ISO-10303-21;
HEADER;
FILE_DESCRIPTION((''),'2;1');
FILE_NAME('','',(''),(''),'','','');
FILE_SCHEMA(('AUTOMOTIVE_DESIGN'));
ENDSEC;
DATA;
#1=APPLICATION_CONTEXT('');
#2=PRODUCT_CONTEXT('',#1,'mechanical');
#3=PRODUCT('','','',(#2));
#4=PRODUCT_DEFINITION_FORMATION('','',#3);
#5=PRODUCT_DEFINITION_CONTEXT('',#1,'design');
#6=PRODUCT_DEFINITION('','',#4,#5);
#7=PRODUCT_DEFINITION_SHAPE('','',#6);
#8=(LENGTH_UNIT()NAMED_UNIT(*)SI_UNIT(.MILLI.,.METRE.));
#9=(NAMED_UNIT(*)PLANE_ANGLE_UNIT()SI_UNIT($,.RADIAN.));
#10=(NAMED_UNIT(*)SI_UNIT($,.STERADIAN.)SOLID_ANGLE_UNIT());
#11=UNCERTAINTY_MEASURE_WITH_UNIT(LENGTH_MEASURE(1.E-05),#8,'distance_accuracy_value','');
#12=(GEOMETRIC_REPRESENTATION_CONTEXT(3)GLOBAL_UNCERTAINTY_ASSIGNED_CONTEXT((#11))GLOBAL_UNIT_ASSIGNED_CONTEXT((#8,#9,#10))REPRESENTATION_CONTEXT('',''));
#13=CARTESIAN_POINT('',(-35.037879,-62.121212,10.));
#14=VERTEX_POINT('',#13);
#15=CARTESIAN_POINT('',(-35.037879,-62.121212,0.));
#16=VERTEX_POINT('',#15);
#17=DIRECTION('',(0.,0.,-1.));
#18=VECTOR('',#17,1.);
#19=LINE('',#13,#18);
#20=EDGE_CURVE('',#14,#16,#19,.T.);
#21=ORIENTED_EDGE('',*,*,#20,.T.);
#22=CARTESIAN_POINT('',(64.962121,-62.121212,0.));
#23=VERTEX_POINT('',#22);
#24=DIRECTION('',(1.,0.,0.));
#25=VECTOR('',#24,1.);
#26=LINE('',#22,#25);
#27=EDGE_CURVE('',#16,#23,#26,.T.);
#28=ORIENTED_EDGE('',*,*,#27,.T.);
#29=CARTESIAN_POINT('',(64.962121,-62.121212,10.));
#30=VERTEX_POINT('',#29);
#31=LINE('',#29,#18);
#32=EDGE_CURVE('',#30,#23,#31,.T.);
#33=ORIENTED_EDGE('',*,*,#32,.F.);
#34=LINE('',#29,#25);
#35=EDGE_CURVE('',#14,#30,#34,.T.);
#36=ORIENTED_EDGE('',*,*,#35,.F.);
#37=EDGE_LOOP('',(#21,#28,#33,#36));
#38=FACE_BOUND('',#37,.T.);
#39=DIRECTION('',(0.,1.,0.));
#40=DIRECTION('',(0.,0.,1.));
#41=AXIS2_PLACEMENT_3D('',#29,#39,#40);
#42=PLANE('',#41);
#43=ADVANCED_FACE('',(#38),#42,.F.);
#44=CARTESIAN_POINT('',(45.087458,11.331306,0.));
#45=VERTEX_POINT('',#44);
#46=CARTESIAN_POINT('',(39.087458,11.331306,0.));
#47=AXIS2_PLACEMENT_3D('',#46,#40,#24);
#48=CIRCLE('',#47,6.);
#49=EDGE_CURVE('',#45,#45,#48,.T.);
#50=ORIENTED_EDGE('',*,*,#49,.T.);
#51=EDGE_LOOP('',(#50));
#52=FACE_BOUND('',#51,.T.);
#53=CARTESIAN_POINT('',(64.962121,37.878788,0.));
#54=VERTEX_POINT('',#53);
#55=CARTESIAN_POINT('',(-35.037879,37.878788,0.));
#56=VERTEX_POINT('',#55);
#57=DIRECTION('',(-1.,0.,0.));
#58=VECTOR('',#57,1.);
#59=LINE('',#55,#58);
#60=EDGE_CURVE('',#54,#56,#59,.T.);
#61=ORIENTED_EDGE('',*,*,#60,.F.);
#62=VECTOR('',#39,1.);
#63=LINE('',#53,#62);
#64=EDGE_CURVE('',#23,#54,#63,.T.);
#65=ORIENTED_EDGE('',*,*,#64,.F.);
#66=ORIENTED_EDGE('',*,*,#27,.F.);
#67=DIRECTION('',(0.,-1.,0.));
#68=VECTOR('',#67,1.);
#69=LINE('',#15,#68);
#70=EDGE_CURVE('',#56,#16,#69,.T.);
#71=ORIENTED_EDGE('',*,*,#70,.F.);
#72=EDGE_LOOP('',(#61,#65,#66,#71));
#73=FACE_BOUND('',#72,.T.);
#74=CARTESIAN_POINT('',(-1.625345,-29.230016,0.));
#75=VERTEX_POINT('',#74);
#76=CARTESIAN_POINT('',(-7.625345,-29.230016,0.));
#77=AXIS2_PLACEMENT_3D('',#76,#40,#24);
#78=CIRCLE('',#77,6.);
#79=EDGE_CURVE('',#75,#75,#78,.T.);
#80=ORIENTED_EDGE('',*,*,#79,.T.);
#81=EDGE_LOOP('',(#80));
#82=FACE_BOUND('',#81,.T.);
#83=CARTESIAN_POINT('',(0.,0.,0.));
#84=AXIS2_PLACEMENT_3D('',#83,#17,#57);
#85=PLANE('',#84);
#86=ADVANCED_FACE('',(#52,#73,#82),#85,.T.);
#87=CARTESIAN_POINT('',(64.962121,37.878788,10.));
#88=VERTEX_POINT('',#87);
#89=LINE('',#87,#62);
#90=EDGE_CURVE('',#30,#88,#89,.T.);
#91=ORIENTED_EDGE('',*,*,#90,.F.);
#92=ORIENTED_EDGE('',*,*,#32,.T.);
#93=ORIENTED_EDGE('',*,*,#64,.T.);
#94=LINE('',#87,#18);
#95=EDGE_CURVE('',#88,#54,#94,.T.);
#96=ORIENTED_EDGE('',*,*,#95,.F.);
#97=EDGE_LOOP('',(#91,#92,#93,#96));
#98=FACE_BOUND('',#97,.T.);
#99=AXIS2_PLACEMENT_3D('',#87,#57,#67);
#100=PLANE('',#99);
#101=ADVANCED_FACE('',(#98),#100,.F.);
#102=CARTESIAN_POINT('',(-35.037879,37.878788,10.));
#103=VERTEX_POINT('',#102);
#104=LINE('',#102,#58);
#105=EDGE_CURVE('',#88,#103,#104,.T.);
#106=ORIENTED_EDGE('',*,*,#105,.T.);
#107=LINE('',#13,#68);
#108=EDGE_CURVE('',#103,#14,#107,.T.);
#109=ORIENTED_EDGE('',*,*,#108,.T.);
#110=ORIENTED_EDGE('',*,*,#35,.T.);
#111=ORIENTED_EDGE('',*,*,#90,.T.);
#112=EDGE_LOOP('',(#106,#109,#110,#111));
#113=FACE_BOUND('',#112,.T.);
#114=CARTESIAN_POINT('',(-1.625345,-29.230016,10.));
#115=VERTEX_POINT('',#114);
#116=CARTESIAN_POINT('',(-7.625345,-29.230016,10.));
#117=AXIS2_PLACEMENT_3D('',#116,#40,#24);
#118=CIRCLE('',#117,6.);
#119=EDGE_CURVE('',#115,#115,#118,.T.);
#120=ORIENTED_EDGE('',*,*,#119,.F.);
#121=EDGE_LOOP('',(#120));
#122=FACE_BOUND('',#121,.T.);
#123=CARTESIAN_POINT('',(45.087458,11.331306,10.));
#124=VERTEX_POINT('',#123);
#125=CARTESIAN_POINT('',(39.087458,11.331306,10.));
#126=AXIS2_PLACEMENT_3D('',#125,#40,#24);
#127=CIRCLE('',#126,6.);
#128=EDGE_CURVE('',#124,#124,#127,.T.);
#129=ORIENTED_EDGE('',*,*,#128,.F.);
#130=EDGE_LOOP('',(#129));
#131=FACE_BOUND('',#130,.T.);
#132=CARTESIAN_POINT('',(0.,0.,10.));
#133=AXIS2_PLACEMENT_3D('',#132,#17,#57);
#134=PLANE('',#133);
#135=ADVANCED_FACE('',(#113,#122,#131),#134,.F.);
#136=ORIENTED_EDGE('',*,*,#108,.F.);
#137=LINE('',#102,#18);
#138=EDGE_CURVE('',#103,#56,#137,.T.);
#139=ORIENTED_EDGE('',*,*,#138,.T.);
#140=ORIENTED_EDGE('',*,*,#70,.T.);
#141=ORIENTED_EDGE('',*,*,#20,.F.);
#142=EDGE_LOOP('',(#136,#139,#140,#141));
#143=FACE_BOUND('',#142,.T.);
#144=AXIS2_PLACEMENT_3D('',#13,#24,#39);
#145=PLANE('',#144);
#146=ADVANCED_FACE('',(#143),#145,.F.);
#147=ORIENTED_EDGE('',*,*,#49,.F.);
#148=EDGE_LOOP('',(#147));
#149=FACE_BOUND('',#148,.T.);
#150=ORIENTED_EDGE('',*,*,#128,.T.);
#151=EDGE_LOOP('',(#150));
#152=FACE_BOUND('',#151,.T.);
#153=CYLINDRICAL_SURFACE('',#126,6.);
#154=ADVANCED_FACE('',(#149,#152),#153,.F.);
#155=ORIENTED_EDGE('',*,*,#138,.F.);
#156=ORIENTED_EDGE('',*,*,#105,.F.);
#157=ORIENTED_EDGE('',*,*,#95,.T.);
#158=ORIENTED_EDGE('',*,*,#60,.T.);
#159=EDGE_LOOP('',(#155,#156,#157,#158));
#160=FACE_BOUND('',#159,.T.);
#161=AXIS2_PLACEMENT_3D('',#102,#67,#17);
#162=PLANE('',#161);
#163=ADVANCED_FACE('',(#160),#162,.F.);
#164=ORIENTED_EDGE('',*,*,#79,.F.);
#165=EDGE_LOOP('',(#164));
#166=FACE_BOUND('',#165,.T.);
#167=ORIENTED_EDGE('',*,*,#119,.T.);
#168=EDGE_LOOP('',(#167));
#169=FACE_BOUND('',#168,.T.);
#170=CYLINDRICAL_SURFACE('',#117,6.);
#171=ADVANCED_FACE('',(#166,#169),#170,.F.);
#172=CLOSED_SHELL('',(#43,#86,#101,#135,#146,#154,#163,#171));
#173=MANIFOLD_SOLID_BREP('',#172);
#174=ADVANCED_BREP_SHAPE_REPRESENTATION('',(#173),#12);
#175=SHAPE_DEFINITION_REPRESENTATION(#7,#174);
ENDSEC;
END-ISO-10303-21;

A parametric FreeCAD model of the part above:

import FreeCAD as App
import Part
import Sketcher
from FreeCAD import Vector


def add_polygon(sketch, points):
    """Adds a closed chain of lines whose ends are joined by coincident constraints."""
    first, n = sketch.GeometryCount, len(points)
    for a, b in zip(points, points[1:] + points[:1]):
        sketch.addGeometry(Part.LineSegment(App.Vector(*a, 0), App.Vector(*b, 0)), False)
    for i in range(n):
        sketch.addConstraint(Sketcher.Constraint("Coincident", first + i, 2, first + (i + 1) % n, 1))

doc = App.newDocument("Part")
params = doc.addObject("Spreadsheet::Sheet", "Params")
for row, (alias, value) in enumerate([
    ("sketch1_width", "100 mm"),
    ("pad1_length", "10 mm"),
    ("sketch2_diameter", "12 mm"),
    ("hole_diameter", "12 mm"),
], start=1):
    params.set(f"A{row}", alias)
    params.set(f"B{row}", "=" + value)
    params.setAlias(f"B{row}", alias)

body = doc.addObject("PartDesign::Body", "Body")

# Sketch on XY plane
sketch1 = body.newObject("Sketcher::SketchObject", "Sketch")
sketch1.AttachmentSupport = (doc.getObject("XY_Plane"), [""])
sketch1.MapMode = "FlatFace"
add_polygon(sketch1, [(-35.037879, 37.878788), (-35.037879, -62.121212), (64.962121, -62.121212), (64.962121, 37.878788)])  # lines 0-3
sketch1.addConstraint([
    Sketcher.Constraint("Vertical", 0),
    Sketcher.Constraint("Horizontal", 1),
    Sketcher.Constraint("Vertical", 2),
    Sketcher.Constraint("Horizontal", 3),
    Sketcher.Constraint("Equal", 3, 0),
    Sketcher.Constraint("DistanceX", 1, 1, 1, 2, 100.0),
    Sketcher.Constraint("DistanceX", 0, 2, -1, 1, 35.037879),
    Sketcher.Constraint("DistanceY", 0, 2, -1, 1, 62.121212),
])
sketch1.setExpression("Constraints[9]", "Params.sketch1_width")
pad1 = body.newObject("PartDesign::Pad", "Pad")
pad1.Profile = sketch1
pad1.setExpression("Length", "Params.pad1_length")

# Sketch on XY plane
sketch2 = body.newObject("Sketcher::SketchObject", "Sketch001")
sketch2.AttachmentSupport = (doc.getObject("XY_Plane"), [""])
sketch2.MapMode = "FlatFace"
sketch2.AttachmentOffset = App.Placement(Vector(0, 0, 10), App.Rotation())
sketch2.addGeometry([
    Part.Circle(Vector(39.087458, 11.331306, 0), Vector(0, 0, 1), 6),
    Part.Circle(Vector(-7.625345, -29.230016, 0), Vector(0, 0, 1), 6),
], False)
sketch2.addConstraint([
    Sketcher.Constraint("Equal", 0, 1),
    Sketcher.Constraint("Diameter", 0, 12.0),
    Sketcher.Constraint("DistanceX", -1, 1, 0, 3, 39.087458),
    Sketcher.Constraint("DistanceY", -1, 1, 0, 3, 11.331306),
    Sketcher.Constraint("DistanceX", 1, 3, -1, 1, 7.625345),
    Sketcher.Constraint("DistanceY", 1, 3, -1, 1, 29.230016),
])
sketch2.setExpression("Constraints[1]", "Params.sketch2_diameter")
doc.recompute()
hole = body.newObject("PartDesign::Hole", "Hole")
hole.Profile = sketch2
hole.ThreadType = "None"
hole.setExpression("Diameter", "Params.hole_diameter")
hole.DepthType = "ThroughAll"

doc.recompute()
